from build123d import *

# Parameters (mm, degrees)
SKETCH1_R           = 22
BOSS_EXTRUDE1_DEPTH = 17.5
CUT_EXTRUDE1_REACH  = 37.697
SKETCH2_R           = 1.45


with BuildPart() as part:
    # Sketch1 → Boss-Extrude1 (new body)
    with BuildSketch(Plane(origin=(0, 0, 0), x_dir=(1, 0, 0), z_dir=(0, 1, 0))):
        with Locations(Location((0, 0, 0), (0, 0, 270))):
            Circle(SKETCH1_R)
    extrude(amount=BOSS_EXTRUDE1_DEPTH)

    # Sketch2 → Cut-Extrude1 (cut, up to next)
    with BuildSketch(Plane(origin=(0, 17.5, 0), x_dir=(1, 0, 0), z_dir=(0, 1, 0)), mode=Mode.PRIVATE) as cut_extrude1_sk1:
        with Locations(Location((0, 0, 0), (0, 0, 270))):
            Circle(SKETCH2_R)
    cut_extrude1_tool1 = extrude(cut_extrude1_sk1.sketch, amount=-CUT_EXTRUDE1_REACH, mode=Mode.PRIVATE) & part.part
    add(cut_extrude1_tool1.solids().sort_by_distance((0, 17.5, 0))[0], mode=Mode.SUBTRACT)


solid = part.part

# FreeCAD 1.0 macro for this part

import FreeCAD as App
import Part
import Sketcher
Q = App.Units.Quantity

doc = App.newDocument("Part")
body = doc.addObject("PartDesign::Body", "Body")

sketch1 = body.newObject("Sketcher::SketchObject", "Sketch")
sketch1.AttachmentSupport = (doc.getObject("XZ_Plane"), [""])
sketch1.MapMode = "FlatFace"
sketch1.addGeometry(Part.Circle(App.Vector(0, 0, 0), App.Vector(0, 0, 1), 22), False)
sketch1.addConstraint([
    Sketcher.Constraint("Coincident", 0, 3, -1, 1),
    Sketcher.Constraint("Diameter", 0, Q("44 mm")),
])
pad1 = body.newObject("PartDesign::Pad", "Pad")
pad1.Profile = sketch1
pad1.Length = 17.5
pad1.Reversed = True

sketch2 = body.newObject("Sketcher::SketchObject", "Sketch001")
sketch2.AttachmentSupport = (doc.getObject("XZ_Plane"), [""])
sketch2.MapMode = "FlatFace"
sketch2.AttachmentOffset = App.Placement(App.Vector(0, 0, -17.5), App.Rotation())
sketch2.addGeometry(Part.Circle(App.Vector(0, 0, 0), App.Vector(0, 0, 1), 1.4), False)
sketch2.addConstraint([
    Sketcher.Constraint("Coincident", 0, 3, -1, 1),
    Sketcher.Constraint("Diameter", 0, Q("2.9 mm")),
])
pocket1 = body.newObject("PartDesign::Pocket", "Pocket")
pocket1.Profile = sketch2
pocket1.Type = "UpToFirst"
pocket1.Reversed = True

doc.recompute()
